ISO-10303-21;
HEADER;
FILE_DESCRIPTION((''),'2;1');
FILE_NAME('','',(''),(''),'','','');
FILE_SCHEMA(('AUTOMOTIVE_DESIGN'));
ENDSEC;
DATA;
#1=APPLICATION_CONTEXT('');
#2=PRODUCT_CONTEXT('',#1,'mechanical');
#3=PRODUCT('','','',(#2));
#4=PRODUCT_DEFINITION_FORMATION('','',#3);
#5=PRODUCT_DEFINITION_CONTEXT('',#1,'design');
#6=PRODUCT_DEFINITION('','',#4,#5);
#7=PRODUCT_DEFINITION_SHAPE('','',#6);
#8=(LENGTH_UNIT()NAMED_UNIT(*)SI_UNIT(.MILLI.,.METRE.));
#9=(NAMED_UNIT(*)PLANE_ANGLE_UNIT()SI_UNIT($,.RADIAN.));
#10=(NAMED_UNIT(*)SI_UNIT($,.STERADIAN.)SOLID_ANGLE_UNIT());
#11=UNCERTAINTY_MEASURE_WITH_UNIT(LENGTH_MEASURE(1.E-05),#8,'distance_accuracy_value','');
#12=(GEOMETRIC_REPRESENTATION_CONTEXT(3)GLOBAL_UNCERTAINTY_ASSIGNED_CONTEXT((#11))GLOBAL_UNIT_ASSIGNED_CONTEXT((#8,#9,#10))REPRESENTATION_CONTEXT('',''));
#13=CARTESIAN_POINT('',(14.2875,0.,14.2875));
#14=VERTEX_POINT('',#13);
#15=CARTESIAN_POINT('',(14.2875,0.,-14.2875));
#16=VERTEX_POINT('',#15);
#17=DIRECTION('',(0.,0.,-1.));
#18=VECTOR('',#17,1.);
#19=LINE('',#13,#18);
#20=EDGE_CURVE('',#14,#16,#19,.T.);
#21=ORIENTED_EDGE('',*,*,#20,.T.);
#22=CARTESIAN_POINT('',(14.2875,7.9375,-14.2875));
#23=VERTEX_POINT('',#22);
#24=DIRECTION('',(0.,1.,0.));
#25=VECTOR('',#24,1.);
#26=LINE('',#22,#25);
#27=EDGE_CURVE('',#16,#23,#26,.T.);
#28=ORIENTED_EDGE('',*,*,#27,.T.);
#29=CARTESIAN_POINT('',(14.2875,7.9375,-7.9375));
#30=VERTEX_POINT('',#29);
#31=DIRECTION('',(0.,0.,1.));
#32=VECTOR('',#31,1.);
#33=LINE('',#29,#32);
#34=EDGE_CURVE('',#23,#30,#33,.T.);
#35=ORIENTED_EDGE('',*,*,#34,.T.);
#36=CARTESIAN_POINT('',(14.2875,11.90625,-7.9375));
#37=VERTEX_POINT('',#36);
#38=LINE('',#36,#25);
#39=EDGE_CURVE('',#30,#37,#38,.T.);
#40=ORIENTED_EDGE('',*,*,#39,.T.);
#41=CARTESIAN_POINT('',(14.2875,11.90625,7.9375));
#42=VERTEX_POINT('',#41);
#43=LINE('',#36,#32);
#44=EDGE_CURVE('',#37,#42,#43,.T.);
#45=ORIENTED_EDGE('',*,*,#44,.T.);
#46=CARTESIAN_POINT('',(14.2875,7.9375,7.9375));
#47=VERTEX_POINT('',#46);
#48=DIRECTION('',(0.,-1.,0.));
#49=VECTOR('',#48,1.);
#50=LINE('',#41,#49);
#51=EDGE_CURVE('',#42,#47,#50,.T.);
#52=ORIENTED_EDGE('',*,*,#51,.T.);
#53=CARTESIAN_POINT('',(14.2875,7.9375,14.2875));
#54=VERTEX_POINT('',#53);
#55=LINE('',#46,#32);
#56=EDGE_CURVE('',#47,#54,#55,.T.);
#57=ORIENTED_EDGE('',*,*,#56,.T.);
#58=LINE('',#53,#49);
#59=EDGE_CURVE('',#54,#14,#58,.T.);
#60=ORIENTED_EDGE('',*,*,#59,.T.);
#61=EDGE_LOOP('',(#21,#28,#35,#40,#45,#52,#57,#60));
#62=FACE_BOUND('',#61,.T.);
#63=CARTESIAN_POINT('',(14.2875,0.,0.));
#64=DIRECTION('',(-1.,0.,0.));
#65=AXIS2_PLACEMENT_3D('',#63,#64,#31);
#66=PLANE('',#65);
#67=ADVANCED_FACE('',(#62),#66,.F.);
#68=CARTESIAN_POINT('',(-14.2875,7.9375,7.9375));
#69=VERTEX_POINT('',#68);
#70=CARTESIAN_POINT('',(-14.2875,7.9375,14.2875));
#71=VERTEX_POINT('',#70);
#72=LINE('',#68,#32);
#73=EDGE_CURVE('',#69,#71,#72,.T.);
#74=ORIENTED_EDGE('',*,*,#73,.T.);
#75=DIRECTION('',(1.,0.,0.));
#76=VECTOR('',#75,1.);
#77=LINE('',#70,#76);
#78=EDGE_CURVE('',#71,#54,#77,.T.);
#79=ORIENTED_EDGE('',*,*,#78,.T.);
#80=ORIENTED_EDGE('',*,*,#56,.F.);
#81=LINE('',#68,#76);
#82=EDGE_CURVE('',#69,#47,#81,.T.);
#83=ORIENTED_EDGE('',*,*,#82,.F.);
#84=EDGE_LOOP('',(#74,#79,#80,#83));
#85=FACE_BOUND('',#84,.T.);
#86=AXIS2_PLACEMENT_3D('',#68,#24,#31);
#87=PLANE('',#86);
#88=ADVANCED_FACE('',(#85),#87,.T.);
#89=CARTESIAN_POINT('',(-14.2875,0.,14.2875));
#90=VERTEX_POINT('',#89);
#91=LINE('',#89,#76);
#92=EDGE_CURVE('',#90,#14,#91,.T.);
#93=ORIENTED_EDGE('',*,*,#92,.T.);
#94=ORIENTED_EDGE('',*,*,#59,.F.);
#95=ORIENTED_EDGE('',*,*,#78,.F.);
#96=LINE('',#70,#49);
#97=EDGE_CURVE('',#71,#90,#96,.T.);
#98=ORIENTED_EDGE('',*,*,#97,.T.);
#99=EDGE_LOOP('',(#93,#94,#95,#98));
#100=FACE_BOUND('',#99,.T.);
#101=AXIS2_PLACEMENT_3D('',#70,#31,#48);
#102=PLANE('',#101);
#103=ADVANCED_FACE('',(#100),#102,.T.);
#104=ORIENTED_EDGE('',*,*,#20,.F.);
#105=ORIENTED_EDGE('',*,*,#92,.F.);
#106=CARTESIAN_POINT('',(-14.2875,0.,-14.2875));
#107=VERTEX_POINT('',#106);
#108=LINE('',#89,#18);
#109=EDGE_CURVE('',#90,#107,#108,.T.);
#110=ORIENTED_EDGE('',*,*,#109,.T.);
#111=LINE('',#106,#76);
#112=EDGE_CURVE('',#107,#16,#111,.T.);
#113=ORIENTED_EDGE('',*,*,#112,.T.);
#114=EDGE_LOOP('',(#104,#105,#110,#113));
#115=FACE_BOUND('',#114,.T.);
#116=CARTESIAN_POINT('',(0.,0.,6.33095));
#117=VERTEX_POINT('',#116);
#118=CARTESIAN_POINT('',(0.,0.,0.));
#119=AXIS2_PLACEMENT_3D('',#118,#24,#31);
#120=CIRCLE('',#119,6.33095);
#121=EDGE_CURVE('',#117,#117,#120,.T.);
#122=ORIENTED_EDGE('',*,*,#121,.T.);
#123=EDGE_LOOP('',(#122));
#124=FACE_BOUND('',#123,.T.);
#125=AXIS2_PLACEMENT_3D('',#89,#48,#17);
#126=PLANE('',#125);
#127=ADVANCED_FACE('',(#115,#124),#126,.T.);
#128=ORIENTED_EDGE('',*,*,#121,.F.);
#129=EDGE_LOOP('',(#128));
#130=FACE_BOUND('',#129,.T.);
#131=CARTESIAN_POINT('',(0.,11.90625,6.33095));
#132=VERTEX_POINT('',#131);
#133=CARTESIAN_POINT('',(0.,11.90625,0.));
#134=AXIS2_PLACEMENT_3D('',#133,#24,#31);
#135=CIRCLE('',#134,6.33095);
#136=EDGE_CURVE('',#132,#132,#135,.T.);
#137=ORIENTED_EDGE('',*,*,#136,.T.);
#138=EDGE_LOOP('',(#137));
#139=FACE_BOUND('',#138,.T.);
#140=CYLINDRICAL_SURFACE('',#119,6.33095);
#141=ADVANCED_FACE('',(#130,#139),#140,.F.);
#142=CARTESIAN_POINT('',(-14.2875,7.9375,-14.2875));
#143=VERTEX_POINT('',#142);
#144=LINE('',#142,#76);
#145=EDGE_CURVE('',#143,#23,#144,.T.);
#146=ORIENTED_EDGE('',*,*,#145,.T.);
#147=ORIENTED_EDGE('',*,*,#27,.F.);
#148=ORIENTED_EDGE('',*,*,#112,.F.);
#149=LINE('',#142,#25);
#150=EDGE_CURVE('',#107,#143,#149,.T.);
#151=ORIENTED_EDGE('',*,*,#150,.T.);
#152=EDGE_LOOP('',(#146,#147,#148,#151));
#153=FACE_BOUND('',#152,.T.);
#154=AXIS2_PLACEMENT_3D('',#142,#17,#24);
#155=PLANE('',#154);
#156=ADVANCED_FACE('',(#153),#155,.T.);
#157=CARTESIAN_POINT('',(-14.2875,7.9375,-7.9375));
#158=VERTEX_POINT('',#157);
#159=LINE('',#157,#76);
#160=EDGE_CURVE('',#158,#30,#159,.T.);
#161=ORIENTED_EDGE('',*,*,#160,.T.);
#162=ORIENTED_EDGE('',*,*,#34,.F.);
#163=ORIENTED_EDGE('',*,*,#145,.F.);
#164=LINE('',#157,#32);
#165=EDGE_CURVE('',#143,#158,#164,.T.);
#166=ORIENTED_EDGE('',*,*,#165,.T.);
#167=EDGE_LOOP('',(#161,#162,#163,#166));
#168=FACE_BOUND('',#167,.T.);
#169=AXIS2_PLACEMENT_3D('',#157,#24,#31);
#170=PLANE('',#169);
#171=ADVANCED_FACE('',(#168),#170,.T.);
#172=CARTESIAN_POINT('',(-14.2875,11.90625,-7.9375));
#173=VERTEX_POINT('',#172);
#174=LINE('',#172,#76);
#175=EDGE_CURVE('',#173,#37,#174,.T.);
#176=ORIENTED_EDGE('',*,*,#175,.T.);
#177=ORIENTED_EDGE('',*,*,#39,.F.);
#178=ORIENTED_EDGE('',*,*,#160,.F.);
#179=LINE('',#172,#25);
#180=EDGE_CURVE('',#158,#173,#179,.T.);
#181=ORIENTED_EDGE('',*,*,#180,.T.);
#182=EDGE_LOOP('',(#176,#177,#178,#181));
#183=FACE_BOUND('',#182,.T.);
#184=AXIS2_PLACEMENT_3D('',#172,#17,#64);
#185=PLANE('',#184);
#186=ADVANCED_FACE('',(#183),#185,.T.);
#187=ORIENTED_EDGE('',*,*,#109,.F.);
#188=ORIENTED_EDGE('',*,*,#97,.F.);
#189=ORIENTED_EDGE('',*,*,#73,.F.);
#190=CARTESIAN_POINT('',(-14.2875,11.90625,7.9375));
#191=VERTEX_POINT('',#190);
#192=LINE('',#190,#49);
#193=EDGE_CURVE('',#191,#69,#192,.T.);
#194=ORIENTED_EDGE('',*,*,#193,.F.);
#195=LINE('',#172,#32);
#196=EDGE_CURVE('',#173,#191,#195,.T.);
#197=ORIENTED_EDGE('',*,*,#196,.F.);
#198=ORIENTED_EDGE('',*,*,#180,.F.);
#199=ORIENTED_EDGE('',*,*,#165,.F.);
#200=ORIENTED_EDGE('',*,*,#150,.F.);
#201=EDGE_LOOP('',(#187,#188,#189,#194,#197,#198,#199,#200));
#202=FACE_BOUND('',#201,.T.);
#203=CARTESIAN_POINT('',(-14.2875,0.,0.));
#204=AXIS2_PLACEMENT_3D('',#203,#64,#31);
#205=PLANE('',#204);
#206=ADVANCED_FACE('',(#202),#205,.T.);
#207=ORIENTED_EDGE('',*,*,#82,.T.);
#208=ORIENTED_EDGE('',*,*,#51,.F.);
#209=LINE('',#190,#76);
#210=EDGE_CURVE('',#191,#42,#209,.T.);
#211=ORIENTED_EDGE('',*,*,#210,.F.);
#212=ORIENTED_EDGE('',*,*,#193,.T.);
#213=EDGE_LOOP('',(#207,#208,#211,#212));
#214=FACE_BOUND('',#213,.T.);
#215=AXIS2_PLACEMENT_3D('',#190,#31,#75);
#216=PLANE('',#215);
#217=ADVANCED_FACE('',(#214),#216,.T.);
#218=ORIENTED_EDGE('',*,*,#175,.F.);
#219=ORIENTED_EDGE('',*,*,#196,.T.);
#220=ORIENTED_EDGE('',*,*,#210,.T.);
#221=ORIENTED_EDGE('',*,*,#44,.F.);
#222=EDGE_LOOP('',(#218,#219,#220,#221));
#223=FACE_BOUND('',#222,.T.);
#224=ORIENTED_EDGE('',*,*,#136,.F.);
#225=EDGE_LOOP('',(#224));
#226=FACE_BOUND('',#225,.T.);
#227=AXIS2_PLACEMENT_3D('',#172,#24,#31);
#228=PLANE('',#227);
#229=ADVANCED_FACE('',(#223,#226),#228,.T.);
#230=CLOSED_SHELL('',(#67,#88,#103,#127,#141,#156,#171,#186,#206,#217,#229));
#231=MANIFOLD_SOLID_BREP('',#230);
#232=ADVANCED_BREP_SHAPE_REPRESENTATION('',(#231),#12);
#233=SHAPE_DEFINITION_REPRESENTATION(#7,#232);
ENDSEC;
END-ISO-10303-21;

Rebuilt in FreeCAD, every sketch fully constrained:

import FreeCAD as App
import Part
import Sketcher

V = App.Vector
Q = App.Units.Quantity

doc = App.newDocument("Part")
params = doc.addObject("Spreadsheet::Sheet", "Params")
for row, (alias, value) in enumerate([
    ("sketch1_height", "0.25 in"),
    ("sketch1_width", "0.15625 in"),
    ("sketch1_width2", "0.3125 in"),
    ("sketch1_height2", "0.625 in"),
    ("pad1_length", "1.125 in"),
], start=1):
    params.set(f"A{row}", alias)
    params.set(f"B{row}", "=" + value)
    params.setAlias(f"B{row}", alias)

body = doc.addObject("PartDesign::Body", "Body")

# Sketch on YZ plane
sketch1 = doc.addObject("Sketcher::SketchObject", "Sketch")
body.addObject(sketch1)
sketch1.AttachmentSupport = (doc.YZ_Plane, [""])
sketch1.MapMode = "FlatFace"
sketch1.addGeometry(Part.LineSegment(V(11.9, -7.9, 0), V(11.9, 7.9, 0)), False)
sketch1.addGeometry(Part.LineSegment(V(11.9, 7.9, 0), V(7.9, 7.9, 0)), False)
sketch1.addGeometry(Part.LineSegment(V(7.9, 7.9, 0), V(7.9, 14.3, 0)), False)
sketch1.addGeometry(Part.LineSegment(V(7.9, 14.3, 0), V(0, 14.3, 0)), False)
sketch1.addGeometry(Part.LineSegment(V(0, 14.3, 0), V(0, -14.3, 0)), False)
sketch1.addGeometry(Part.LineSegment(V(0, -14.3, 0), V(7.9, -14.3, 0)), False)
sketch1.addGeometry(Part.LineSegment(V(7.9, -14.3, 0), V(7.9, -7.9, 0)), False)
sketch1.addGeometry(Part.LineSegment(V(7.9, -7.9, 0), V(11.9, -7.9, 0)), False)
sketch1.addConstraint(Sketcher.Constraint("Coincident", 0, 2, 1, 1))
sketch1.addConstraint(Sketcher.Constraint("Coincident", 1, 2, 2, 1))
sketch1.addConstraint(Sketcher.Constraint("Coincident", 2, 2, 3, 1))
sketch1.addConstraint(Sketcher.Constraint("Coincident", 3, 2, 4, 1))
sketch1.addConstraint(Sketcher.Constraint("Coincident", 4, 2, 5, 1))
sketch1.addConstraint(Sketcher.Constraint("Coincident", 5, 2, 6, 1))
sketch1.addConstraint(Sketcher.Constraint("Coincident", 6, 2, 7, 1))
sketch1.addConstraint(Sketcher.Constraint("Coincident", 7, 2, 0, 1))
sketch1.addConstraint(Sketcher.Constraint("Vertical", 0))
sketch1.addConstraint(Sketcher.Constraint("Horizontal", 1))
sketch1.addConstraint(Sketcher.Constraint("Vertical", 2))
sketch1.addConstraint(Sketcher.Constraint("Horizontal", 3))
sketch1.addConstraint(Sketcher.Constraint("Vertical", 4))
sketch1.addConstraint(Sketcher.Constraint("Horizontal", 5))
sketch1.addConstraint(Sketcher.Constraint("Vertical", 6))
sketch1.addConstraint(Sketcher.Constraint("Horizontal", 7))
sketch1.addConstraint(Sketcher.Constraint("Symmetric", 3, 2, 4, 2, -1, 1))
sketch1.addConstraint(Sketcher.Constraint("Symmetric", 1, 2, 6, 2, -1))
sketch1.addConstraint(Sketcher.Constraint("DistanceY", 2, 1, 2, 2, Q("0.25 in")))
sketch1.addConstraint(Sketcher.Constraint("DistanceX", 1, 2, 1, 1, Q("0.15625 in")))
sketch1.addConstraint(Sketcher.Constraint("DistanceX", 3, 2, 3, 1, Q("0.3125 in")))
sketch1.addConstraint(Sketcher.Constraint("DistanceY", 0, 1, 0, 2, Q("0.625 in")))
sketch1.setExpression("Constraints[18]", "Params.sketch1_height")
sketch1.setExpression("Constraints[19]", "Params.sketch1_width")
sketch1.setExpression("Constraints[20]", "Params.sketch1_width2")
sketch1.setExpression("Constraints[21]", "Params.sketch1_height2")
pad1 = doc.addObject("PartDesign::Pad", "Pad")
body.addObject(pad1)
pad1.Profile = sketch1
pad1.setExpression("Length", "Params.pad1_length")
pad1.Midplane = True

# Sketch on XZ plane
sketch2 = doc.addObject("Sketcher::SketchObject", "Sketch001")
body.addObject(sketch2)
sketch2.AttachmentSupport = (doc.XZ_Plane, [""])
sketch2.MapMode = "FlatFace"
sketch2.AttachmentOffset = App.Placement(V(0, 0, -0.46875 * 25.4), App.Rotation())
sketch2.addGeometry(Part.Circle(V(0, 0, 0), V(0, 0, 1), 6), False)
sketch2.addConstraint(Sketcher.Constraint("Coincident", 0, 3, -1, 1))
sketch2.addConstraint(Sketcher.Constraint("Diameter", 0, Q("0.4985 in")))
pocket1 = doc.addObject("PartDesign::Pocket", "Pocket")
body.addObject(pocket1)
pocket1.Profile = sketch2
pocket1.Type = "ThroughAll"
pocket1.Reversed = True

doc.recompute()
